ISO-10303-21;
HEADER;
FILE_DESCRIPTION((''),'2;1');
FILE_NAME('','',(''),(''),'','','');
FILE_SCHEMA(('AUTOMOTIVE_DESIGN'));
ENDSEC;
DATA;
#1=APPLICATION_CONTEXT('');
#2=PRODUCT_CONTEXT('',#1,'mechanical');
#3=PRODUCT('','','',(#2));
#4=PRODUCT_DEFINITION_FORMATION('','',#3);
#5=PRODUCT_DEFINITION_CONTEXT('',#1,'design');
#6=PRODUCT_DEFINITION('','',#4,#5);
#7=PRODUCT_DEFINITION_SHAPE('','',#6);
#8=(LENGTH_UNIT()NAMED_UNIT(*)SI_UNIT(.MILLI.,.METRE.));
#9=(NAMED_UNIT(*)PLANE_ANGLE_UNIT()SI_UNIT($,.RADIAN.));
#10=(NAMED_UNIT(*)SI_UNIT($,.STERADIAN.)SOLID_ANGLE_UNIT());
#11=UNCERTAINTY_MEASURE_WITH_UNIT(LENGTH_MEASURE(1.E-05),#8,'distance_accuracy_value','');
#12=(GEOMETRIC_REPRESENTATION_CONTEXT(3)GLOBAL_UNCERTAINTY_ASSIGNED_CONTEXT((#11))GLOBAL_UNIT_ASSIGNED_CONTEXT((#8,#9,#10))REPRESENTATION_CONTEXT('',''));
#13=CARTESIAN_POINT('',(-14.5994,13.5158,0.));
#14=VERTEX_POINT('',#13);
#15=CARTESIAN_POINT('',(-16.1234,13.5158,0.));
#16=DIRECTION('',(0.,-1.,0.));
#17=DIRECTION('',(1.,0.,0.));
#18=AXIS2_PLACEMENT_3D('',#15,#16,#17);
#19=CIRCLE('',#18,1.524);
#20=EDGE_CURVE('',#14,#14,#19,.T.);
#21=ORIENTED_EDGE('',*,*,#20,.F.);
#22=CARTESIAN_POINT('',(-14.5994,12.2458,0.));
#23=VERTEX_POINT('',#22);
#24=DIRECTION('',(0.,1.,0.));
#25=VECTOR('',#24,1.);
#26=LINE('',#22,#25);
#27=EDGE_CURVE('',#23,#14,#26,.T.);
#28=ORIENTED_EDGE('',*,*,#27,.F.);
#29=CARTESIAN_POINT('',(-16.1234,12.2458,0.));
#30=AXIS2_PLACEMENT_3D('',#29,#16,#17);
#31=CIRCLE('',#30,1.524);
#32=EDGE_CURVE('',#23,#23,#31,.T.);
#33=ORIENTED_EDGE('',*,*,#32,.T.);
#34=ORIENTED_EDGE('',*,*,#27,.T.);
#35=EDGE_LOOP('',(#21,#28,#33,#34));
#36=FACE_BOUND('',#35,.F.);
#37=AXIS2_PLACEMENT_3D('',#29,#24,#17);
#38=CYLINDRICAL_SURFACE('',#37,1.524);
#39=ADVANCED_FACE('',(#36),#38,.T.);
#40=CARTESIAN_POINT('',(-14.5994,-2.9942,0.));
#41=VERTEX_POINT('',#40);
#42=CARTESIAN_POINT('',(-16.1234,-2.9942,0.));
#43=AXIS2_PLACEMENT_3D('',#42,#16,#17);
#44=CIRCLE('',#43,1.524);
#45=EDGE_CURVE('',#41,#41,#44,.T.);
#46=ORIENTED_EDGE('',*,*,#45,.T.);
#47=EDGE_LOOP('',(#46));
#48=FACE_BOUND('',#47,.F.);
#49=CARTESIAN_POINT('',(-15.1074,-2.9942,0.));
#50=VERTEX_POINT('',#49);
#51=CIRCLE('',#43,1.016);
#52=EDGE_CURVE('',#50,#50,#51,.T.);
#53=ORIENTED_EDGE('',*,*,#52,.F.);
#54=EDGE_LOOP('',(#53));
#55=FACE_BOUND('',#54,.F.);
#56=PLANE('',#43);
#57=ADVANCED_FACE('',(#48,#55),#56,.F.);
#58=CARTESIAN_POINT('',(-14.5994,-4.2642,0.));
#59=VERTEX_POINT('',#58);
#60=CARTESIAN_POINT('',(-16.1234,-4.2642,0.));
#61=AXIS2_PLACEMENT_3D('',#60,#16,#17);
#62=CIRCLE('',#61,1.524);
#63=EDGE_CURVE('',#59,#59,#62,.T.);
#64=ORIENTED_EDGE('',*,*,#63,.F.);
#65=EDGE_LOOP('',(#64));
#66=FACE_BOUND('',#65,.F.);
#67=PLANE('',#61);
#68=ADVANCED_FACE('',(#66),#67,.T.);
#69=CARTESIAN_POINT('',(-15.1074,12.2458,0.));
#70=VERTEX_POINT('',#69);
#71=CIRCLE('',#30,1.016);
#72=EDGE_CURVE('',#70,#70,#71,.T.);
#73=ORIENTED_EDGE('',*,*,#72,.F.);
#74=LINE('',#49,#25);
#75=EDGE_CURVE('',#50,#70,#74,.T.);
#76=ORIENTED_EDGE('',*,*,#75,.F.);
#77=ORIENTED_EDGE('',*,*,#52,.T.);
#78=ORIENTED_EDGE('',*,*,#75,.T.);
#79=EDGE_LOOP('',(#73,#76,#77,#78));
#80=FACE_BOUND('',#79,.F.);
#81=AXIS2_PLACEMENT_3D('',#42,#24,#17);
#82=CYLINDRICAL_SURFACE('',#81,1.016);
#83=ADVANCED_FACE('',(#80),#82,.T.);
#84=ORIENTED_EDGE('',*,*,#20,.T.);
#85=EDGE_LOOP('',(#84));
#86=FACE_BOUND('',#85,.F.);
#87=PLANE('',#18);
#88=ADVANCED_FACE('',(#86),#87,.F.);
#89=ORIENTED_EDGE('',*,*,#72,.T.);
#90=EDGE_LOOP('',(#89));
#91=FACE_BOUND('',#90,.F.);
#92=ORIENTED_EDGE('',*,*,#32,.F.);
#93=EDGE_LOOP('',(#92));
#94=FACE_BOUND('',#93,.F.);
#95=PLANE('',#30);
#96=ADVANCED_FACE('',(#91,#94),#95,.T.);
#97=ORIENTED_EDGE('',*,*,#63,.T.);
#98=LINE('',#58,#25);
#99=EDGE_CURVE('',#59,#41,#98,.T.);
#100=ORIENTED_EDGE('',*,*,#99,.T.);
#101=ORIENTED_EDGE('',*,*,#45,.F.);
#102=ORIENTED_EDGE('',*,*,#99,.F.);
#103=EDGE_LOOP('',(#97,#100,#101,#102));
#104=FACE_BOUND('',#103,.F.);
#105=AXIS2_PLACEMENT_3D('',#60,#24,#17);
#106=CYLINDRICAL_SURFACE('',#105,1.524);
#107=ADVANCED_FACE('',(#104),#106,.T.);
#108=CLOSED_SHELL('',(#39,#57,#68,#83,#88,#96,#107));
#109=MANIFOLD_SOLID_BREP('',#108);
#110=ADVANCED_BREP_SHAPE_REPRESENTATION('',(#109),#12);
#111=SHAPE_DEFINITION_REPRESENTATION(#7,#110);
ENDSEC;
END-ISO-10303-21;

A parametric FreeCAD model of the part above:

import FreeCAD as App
import Part
import Sketcher
Q = App.Units.Quantity

doc = App.newDocument("Part")
body = doc.addObject("PartDesign::Body", "Body")

# Sketch on XY plane
sketch1 = body.newObject("Sketcher::SketchObject", "Sketch")
sketch1.AttachmentSupport = (doc.getObject("XY_Plane"), [""])
sketch1.MapMode = "FlatFace"
sketch1.addGeometry(Part.LineSegment(App.Vector(-14.6, 13.5, 0), App.Vector(-16.1, 13.5, 0)), False)
sketch1.addGeometry(Part.LineSegment(App.Vector(-16.1, 13.5, 0), App.Vector(-16.1, -4.3, 0)), False)
sketch1.addGeometry(Part.LineSegment(App.Vector(-16.1, -4.3, 0), App.Vector(-14.6, -4.3, 0)), False)
sketch1.addGeometry(Part.LineSegment(App.Vector(-14.6, -4.3, 0), App.Vector(-14.6, -3, 0)), False)
sketch1.addGeometry(Part.LineSegment(App.Vector(-14.6, -3, 0), App.Vector(-15.1, -3, 0)), False)
sketch1.addGeometry(Part.LineSegment(App.Vector(-15.1, -3, 0), App.Vector(-15.1, 12.2, 0)), False)
sketch1.addGeometry(Part.LineSegment(App.Vector(-15.1, 12.2, 0), App.Vector(-14.6, 12.2, 0)), False)
sketch1.addGeometry(Part.LineSegment(App.Vector(-14.6, 12.2, 0), App.Vector(-14.6, 13.5, 0)), False)
sketch1.addGeometry(Part.LineSegment(App.Vector(-16.1, 13.5, 0), App.Vector(-16.1, -4.3, 0)), True)  # axis
sketch1.addConstraint(Sketcher.Constraint("Coincident", 0, 2, 1, 1))
sketch1.addConstraint(Sketcher.Constraint("Coincident", 1, 2, 2, 1))
sketch1.addConstraint(Sketcher.Constraint("Coincident", 2, 2, 3, 1))
sketch1.addConstraint(Sketcher.Constraint("Coincident", 3, 2, 4, 1))
sketch1.addConstraint(Sketcher.Constraint("Coincident", 4, 2, 5, 1))
sketch1.addConstraint(Sketcher.Constraint("Coincident", 5, 2, 6, 1))
sketch1.addConstraint(Sketcher.Constraint("Coincident", 6, 2, 7, 1))
sketch1.addConstraint(Sketcher.Constraint("Coincident", 7, 2, 0, 1))
sketch1.addConstraint(Sketcher.Constraint("Horizontal", 0))
sketch1.addConstraint(Sketcher.Constraint("Vertical", 1))
sketch1.addConstraint(Sketcher.Constraint("Horizontal", 2))
sketch1.addConstraint(Sketcher.Constraint("Vertical", 3))
sketch1.addConstraint(Sketcher.Constraint("Horizontal", 4))
sketch1.addConstraint(Sketcher.Constraint("Vertical", 5))
sketch1.addConstraint(Sketcher.Constraint("Horizontal", 6))
sketch1.addConstraint(Sketcher.Constraint("Vertical", 7))
sketch1.addConstraint(Sketcher.Constraint("Vertical", 8))
sketch1.addConstraint(Sketcher.Constraint("Coincident", 8, 1, 0, 2))
sketch1.addConstraint(Sketcher.Constraint("Horizontal", 2, 2, 8, 2))
sketch1.addConstraint(Sketcher.Constraint("Vertical", 3, 2, 6, 2))
sketch1.addConstraint(Sketcher.Constraint("Equal", 3, 7))
sketch1.addConstraint(Sketcher.Constraint("DistanceY", 1, 2, 1, 1, Q("0.7 in")))
sketch1.addConstraint(Sketcher.Constraint("DistanceX", 0, 2, 0, 1, Q("0.06 in")))
sketch1.addConstraint(Sketcher.Constraint("DistanceX", 4, 2, 4, 1, Q("0.02 in")))
sketch1.addConstraint(Sketcher.Constraint("DistanceY", 3, 1, 3, 2, Q("0.05 in")))
sketch1.addConstraint(Sketcher.Constraint("DistanceX", 0, 2, -1, 1, 16.1234))
sketch1.addConstraint(Sketcher.Constraint("DistanceY", -1, 1, 0, 2, 13.5158))
revolution = body.newObject("PartDesign::Revolution", "Revolution")
revolution.Profile = sketch1
revolution.ReferenceAxis = (sketch1, ["Axis0"])
revolution.Angle = 360

doc.recompute()
